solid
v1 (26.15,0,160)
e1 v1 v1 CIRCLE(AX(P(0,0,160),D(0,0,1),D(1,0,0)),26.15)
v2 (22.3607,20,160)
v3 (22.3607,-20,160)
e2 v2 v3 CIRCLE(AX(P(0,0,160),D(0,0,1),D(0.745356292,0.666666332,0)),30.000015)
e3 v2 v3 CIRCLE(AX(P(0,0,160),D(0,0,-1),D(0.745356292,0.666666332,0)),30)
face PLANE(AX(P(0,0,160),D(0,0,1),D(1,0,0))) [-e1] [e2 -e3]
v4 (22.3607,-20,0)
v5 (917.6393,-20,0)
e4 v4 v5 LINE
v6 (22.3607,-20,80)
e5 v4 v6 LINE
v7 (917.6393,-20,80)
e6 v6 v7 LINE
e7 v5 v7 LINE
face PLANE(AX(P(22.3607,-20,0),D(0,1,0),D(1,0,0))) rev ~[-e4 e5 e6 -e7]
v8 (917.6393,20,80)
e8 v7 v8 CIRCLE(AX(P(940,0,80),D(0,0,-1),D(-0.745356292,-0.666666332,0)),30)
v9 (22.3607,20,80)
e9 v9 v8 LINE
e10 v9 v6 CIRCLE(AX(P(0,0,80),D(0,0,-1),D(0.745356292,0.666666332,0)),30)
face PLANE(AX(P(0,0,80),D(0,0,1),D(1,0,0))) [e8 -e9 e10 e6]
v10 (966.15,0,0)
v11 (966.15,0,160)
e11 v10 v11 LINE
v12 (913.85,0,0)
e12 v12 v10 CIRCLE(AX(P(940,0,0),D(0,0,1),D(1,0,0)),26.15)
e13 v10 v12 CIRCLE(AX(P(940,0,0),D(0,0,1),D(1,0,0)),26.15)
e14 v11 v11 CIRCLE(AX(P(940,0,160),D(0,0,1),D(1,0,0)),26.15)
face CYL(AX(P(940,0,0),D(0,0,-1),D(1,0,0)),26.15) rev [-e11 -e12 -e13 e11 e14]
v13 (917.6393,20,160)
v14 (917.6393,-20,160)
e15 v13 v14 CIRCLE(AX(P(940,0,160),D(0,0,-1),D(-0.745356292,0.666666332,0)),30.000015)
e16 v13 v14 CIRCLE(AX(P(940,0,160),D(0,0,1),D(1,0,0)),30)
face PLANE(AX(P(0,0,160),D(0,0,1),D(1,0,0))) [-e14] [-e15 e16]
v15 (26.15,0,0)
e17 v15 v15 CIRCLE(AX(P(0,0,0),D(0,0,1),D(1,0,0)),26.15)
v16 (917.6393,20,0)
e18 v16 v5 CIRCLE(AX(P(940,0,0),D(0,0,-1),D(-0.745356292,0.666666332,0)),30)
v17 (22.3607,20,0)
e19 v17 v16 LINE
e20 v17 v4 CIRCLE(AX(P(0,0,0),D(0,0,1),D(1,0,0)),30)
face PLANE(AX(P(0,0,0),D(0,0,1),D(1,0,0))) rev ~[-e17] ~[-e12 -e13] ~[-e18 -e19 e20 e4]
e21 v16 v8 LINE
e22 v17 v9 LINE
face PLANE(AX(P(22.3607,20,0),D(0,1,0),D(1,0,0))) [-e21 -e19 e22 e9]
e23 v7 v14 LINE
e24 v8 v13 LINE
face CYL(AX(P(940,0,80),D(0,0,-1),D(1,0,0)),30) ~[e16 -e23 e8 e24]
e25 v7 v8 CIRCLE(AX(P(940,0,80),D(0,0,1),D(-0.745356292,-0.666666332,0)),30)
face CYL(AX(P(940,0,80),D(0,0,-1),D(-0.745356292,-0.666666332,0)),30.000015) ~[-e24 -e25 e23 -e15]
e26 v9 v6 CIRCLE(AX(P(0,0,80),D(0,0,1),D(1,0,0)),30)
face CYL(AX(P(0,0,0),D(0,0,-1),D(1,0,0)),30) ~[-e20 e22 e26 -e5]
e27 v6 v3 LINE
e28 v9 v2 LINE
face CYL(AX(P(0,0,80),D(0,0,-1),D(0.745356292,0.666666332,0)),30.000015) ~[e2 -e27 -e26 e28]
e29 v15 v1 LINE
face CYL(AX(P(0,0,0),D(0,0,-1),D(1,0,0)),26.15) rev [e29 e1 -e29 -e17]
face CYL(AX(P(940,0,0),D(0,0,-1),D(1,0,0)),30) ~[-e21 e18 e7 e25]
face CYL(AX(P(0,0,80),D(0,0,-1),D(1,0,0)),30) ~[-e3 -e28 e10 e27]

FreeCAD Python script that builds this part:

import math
import FreeCAD as App
import Part
import Sketcher

V = App.Vector
Q = App.Units.Quantity

doc = App.newDocument("Part")
body = doc.addObject("PartDesign::Body", "Body")

# Sketch on XY plane
sketch1 = body.newObject("Sketcher::SketchObject", "Sketch")
sketch1.AttachmentSupport = (doc.getObject("XY_Plane"), [""])
sketch1.MapMode = "FlatFace"
sketch1.addGeometry([
    Part.ArcOfCircle(Part.Circle(V(0, 0, 0), V(0, 0, 1), 30), math.radians(42), math.radians(318)),  # 0
    Part.LineSegment(V(22, -20, 0), V(918, -20, 0)),  # 1
    Part.ArcOfCircle(Part.Circle(V(940, 0, 0), V(0, 0, 1), 30), math.radians(-138), math.radians(138)),  # 2
    Part.LineSegment(V(918, 20, 0), V(22, 20, 0)),  # 3
    Part.Circle(V(0, 0, 0), V(0, 0, 1), 26),  # 4
    Part.Circle(V(940, 0, 0), V(0, 0, 1), 26),  # 5
], False)
sketch1.addConstraint([
    Sketcher.Constraint("Coincident", 0, 2, 1, 1),
    Sketcher.Constraint("Coincident", 1, 2, 2, 1),
    Sketcher.Constraint("Coincident", 2, 2, 3, 1),
    Sketcher.Constraint("Coincident", 3, 2, 0, 1),
    Sketcher.Constraint("Horizontal", 1),
    Sketcher.Constraint("Horizontal", 3),
    Sketcher.Constraint("Coincident", 0, 3, -1, 1),
    Sketcher.Constraint("Coincident", 4, 3, -1, 1),
    Sketcher.Constraint("Coincident", 5, 3, 2, 3),
    Sketcher.Constraint("Equal", 0, 2),
    Sketcher.Constraint("Equal", 4, 5),
    Sketcher.Constraint("Symmetric", 1, 2, 2, 2, -1),
    Sketcher.Constraint("Radius", 0, Q("30 mm")),
    Sketcher.Constraint("Diameter", 4, Q("52.3 mm")),
    Sketcher.Constraint("DistanceX", -1, 1, 2, 3, Q("940 mm")),
    Sketcher.Constraint("DistanceY", 0, 2, -1, 1, Q("20 mm")),
])
pad1 = body.newObject("PartDesign::Pad", "Pad")
pad1.Profile = sketch1
pad1.Length = 80

# Sketch on XY plane
sketch2 = body.newObject("Sketcher::SketchObject", "Sketch001")
sketch2.AttachmentSupport = (doc.getObject("XY_Plane"), [""])
sketch2.MapMode = "FlatFace"
sketch2.AttachmentOffset = App.Placement(V(0, 0, 80), App.Rotation())
sketch2.addGeometry([
    Part.Circle(V(0, 0, 0), V(0, 0, 1), 30),
    Part.Circle(V(0, 0, 0), V(0, 0, 1), 26),
    Part.Circle(V(940, 0, 0), V(0, 0, 1), 30),
    Part.Circle(V(940, 0, 0), V(0, 0, 1), 26),
], False)
sketch2.addConstraint([
    Sketcher.Constraint("Coincident", 0, 3, -1, 1),
    Sketcher.Constraint("Coincident", 1, 3, -1, 1),
    Sketcher.Constraint("Coincident", 3, 3, 2, 3),
    Sketcher.Constraint("Equal", 0, 2),
    Sketcher.Constraint("Equal", 1, 3),
    Sketcher.Constraint("PointOnObject", 2, 3, -1),
    Sketcher.Constraint("Diameter", 0, Q("60 mm")),
    Sketcher.Constraint("Diameter", 1, Q("52.3 mm")),
    Sketcher.Constraint("DistanceX", -1, 1, 2, 3, Q("940 mm")),
])
pad2 = body.newObject("PartDesign::Pad", "Pad001")
pad2.Profile = sketch2
pad2.Length = 80

doc.recompute()
